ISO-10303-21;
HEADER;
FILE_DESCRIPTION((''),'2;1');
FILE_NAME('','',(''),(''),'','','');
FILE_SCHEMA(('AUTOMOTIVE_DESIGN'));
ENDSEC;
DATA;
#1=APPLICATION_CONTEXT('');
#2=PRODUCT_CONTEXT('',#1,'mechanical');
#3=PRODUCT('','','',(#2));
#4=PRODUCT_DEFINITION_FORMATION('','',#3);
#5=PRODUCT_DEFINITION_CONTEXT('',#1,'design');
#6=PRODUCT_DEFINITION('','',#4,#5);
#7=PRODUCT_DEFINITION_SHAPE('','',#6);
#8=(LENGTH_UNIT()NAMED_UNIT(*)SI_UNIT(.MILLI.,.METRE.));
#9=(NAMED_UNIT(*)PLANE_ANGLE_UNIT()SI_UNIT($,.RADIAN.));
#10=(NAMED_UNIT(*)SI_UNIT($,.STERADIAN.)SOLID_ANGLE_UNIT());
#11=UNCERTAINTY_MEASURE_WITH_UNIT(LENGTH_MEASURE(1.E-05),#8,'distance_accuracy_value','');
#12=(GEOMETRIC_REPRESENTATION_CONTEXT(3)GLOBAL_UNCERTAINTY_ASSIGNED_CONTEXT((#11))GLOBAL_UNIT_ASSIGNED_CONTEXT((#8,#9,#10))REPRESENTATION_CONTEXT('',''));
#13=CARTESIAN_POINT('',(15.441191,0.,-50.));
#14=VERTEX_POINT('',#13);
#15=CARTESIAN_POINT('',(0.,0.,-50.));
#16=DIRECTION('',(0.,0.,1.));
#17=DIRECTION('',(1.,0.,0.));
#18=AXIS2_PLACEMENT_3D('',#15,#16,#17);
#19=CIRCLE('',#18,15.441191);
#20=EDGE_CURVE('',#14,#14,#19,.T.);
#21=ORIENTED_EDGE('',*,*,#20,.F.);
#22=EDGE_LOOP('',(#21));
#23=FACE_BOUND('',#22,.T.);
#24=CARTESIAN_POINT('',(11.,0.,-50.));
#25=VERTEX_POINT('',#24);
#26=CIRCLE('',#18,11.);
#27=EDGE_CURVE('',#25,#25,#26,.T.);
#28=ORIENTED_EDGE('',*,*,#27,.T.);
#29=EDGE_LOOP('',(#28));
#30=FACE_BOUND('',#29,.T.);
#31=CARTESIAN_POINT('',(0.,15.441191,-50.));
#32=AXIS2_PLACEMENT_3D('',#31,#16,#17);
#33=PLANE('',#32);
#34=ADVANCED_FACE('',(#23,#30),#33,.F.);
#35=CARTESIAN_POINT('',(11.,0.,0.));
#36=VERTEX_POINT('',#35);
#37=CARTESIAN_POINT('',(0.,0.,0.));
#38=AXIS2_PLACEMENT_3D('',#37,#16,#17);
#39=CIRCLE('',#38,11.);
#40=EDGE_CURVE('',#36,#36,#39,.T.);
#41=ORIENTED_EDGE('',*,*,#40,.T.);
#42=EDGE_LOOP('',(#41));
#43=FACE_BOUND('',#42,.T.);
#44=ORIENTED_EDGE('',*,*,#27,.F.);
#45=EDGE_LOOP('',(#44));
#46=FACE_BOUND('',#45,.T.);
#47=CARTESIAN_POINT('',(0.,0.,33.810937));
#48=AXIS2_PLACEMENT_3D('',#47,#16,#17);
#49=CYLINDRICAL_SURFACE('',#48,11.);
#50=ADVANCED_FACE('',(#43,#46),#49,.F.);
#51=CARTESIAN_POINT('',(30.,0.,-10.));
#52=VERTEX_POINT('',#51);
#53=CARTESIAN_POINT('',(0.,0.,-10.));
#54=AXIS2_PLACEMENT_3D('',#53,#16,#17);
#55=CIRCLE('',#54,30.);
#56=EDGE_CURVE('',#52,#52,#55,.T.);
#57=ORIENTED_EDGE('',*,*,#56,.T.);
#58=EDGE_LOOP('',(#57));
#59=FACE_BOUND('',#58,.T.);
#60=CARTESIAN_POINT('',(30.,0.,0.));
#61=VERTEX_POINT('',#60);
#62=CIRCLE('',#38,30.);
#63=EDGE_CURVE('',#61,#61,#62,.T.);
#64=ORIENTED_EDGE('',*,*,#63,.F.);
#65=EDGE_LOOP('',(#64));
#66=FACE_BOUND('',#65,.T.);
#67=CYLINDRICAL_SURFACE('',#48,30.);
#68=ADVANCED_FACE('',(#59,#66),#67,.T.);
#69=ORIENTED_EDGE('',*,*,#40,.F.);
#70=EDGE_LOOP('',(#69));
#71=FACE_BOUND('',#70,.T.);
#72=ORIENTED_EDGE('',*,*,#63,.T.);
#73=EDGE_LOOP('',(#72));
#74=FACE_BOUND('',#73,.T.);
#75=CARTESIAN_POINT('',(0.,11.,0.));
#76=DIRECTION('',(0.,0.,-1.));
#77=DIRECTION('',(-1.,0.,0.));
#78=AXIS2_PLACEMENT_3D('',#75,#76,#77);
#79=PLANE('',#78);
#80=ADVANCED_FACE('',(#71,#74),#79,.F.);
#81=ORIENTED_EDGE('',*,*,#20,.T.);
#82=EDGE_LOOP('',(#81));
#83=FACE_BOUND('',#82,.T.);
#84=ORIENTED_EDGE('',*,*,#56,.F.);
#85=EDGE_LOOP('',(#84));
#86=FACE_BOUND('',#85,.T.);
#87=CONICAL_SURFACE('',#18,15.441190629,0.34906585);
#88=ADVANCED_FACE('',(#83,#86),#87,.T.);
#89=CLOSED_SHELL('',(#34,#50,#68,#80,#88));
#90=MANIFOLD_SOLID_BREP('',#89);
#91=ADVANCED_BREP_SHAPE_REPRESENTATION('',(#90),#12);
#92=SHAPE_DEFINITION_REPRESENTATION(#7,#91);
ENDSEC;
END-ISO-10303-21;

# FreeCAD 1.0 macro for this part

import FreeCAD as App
import Part
import Sketcher

V = App.Vector
Q = App.Units.Quantity

doc = App.newDocument("Part")
body = doc.addObject("PartDesign::Body", "Body")

sketch1 = doc.addObject("Sketcher::SketchObject", "Sketch")
body.addObject(sketch1)
sketch1.AttachmentSupport = (doc.YZ_Plane, [""])
sketch1.MapMode = "FlatFace"
sketch1.addGeometry([
    Part.LineSegment(V(30, 0, 0), V(11, 0, 0)),
    Part.LineSegment(V(11, 0, 0), V(11, -50, 0)),
    Part.LineSegment(V(11, -50, 0), V(15.4, -50, 0)),
    Part.LineSegment(V(15.4, -50, 0), V(30, -10, 0)),
    Part.LineSegment(V(30, -10, 0), V(30, 0, 0)),
], False)
sketch1.addConstraint([
    Sketcher.Constraint("Coincident", 0, 2, 1, 1),
    Sketcher.Constraint("Coincident", 1, 2, 2, 1),
    Sketcher.Constraint("Coincident", 2, 2, 3, 1),
    Sketcher.Constraint("Coincident", 3, 2, 4, 1),
    Sketcher.Constraint("Coincident", 4, 2, 0, 1),
    Sketcher.Constraint("Horizontal", 0),
    Sketcher.Constraint("Vertical", 1),
    Sketcher.Constraint("Horizontal", 2),
    Sketcher.Constraint("Vertical", 4),
    Sketcher.Constraint("PointOnObject", 0, 2, -1),
    Sketcher.Constraint("DistanceX", 0, 2, 0, 1, 19.0),
    Sketcher.Constraint("DistanceY", 1, 2, 1, 1, 50.0),
    Sketcher.Constraint("DistanceY", 4, 1, 4, 2, 10.0),
    Sketcher.Constraint("Angle", 3, Q("70 deg")),
    Sketcher.Constraint("DistanceX", -1, 1, 0, 2, 11.0),
])
revolution = doc.addObject("PartDesign::Revolution", "Revolution")
body.addObject(revolution)
revolution.Profile = sketch1
revolution.ReferenceAxis = (sketch1, ["V_Axis"])
revolution.Angle = 360

doc.recompute()
